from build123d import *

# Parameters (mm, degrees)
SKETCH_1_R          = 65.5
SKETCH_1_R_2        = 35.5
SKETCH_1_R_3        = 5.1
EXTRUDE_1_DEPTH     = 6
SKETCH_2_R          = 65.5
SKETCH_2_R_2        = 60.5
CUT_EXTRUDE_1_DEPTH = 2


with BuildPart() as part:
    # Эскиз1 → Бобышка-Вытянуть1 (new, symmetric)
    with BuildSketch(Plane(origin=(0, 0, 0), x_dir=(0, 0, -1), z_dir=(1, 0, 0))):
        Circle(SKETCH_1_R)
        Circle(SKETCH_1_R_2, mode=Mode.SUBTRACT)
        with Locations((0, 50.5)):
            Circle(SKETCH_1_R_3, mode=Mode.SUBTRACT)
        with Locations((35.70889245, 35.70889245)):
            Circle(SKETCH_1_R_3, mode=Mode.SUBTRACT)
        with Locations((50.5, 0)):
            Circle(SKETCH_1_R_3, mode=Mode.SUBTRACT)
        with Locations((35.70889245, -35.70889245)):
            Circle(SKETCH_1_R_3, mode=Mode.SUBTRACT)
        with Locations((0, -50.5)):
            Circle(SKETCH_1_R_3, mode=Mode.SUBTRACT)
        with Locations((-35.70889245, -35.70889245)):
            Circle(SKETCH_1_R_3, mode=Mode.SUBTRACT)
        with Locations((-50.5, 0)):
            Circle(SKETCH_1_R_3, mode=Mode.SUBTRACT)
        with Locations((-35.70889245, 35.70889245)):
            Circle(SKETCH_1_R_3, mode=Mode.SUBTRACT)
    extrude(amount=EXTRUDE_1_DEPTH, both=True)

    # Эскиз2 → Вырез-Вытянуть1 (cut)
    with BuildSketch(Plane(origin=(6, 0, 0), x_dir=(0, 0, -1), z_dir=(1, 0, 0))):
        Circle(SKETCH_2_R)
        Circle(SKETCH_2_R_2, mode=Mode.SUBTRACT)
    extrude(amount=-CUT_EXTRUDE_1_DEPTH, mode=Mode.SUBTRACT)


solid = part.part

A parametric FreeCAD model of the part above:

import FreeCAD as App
import Part
import Sketcher

V = App.Vector

doc = App.newDocument("Part")
body = doc.addObject("PartDesign::Body", "Body")

# Sketch on YZ plane
sketch1 = body.newObject("Sketcher::SketchObject", "Sketch")
sketch1.AttachmentSupport = (doc.getObject("YZ_Plane"), [""])
sketch1.MapMode = "FlatFace"
sketch1.addGeometry([
    Part.Circle(V(0, 0, 0), V(0, 0, 1), 65.5),  # 0
    Part.Circle(V(-35.708892, 35.708892, 0), V(0, 0, 1), 5.1),  # 1
    Part.Circle(V(-50.5, 0, 0), V(0, 0, 1), 5.1),  # 2
    Part.Circle(V(-35.708892, -35.708892, 0), V(0, 0, 1), 5.1),  # 3
    Part.Circle(V(0, 50.5, 0), V(0, 0, 1), 5.1),  # 4
    Part.Circle(V(35.708892, 35.708892, 0), V(0, 0, 1), 5.1),  # 5
    Part.Circle(V(0, 0, 0), V(0, 0, 1), 35.5),  # 6
    Part.Circle(V(0, -50.5, 0), V(0, 0, 1), 5.1),  # 7
    Part.Circle(V(50.5, 0, 0), V(0, 0, 1), 5.1),  # 8
    Part.Circle(V(35.708892, -35.708892, 0), V(0, 0, 1), 5.1),  # 9
], False)
sketch1.addConstraint([
    Sketcher.Constraint("Coincident", 0, 3, -1, 1),
    Sketcher.Constraint("Coincident", 6, 3, -1, 1),
    Sketcher.Constraint("Equal", 1, 2),
    Sketcher.Constraint("Equal", 2, 3),
    Sketcher.Constraint("Equal", 3, 4),
    Sketcher.Constraint("Equal", 4, 5),
    Sketcher.Constraint("Equal", 5, 7),
    Sketcher.Constraint("Equal", 7, 8),
    Sketcher.Constraint("Equal", 8, 9),
    Sketcher.Constraint("Symmetric", 3, 3, 5, 3, -1, 1),
    Sketcher.Constraint("Symmetric", 4, 3, 7, 3, -1, 1),
    Sketcher.Constraint("Symmetric", 2, 3, 8, 3, -1, 1),
    Sketcher.Constraint("Symmetric", 1, 3, 9, 3, -1, 1),
    Sketcher.Constraint("Symmetric", 1, 3, 5, 3, -2),
    Sketcher.Constraint("PointOnObject", 2, 3, -1),
    Sketcher.Constraint("PointOnObject", 4, 3, -2),
    Sketcher.Constraint("Diameter", 0, 131.0),
    Sketcher.Constraint("Diameter", 6, 71.0),
    Sketcher.Constraint("Diameter", 1, 10.2),
    Sketcher.Constraint("DistanceX", 2, 3, -1, 1, 50.5),
    Sketcher.Constraint("DistanceY", -1, 1, 4, 3, 50.5),
    Sketcher.Constraint("DistanceX", 1, 3, -1, 1, 35.708892),
    Sketcher.Constraint("DistanceY", -1, 1, 1, 3, 35.708892),
])
pad1 = body.newObject("PartDesign::Pad", "Pad")
pad1.Profile = sketch1
pad1.Length = 12
pad1.Midplane = True

# Sketch on YZ plane
sketch2 = body.newObject("Sketcher::SketchObject", "Sketch001")
sketch2.AttachmentSupport = (doc.getObject("YZ_Plane"), [""])
sketch2.MapMode = "FlatFace"
sketch2.AttachmentOffset = App.Placement(V(0, 0, 6), App.Rotation())
sketch2.addGeometry([
    Part.Circle(V(0, 0, 0), V(0, 0, 1), 65.5),
    Part.Circle(V(0, 0, 0), V(0, 0, 1), 60.5),
], False)
sketch2.addConstraint([
    Sketcher.Constraint("Coincident", 0, 3, -1, 1),
    Sketcher.Constraint("Coincident", 1, 3, -1, 1),
    Sketcher.Constraint("Diameter", 0, 131.0),
    Sketcher.Constraint("Diameter", 1, 121.0),
])
pocket1 = body.newObject("PartDesign::Pocket", "Pocket")
pocket1.Profile = sketch2
pocket1.Length = 2

doc.recompute()
